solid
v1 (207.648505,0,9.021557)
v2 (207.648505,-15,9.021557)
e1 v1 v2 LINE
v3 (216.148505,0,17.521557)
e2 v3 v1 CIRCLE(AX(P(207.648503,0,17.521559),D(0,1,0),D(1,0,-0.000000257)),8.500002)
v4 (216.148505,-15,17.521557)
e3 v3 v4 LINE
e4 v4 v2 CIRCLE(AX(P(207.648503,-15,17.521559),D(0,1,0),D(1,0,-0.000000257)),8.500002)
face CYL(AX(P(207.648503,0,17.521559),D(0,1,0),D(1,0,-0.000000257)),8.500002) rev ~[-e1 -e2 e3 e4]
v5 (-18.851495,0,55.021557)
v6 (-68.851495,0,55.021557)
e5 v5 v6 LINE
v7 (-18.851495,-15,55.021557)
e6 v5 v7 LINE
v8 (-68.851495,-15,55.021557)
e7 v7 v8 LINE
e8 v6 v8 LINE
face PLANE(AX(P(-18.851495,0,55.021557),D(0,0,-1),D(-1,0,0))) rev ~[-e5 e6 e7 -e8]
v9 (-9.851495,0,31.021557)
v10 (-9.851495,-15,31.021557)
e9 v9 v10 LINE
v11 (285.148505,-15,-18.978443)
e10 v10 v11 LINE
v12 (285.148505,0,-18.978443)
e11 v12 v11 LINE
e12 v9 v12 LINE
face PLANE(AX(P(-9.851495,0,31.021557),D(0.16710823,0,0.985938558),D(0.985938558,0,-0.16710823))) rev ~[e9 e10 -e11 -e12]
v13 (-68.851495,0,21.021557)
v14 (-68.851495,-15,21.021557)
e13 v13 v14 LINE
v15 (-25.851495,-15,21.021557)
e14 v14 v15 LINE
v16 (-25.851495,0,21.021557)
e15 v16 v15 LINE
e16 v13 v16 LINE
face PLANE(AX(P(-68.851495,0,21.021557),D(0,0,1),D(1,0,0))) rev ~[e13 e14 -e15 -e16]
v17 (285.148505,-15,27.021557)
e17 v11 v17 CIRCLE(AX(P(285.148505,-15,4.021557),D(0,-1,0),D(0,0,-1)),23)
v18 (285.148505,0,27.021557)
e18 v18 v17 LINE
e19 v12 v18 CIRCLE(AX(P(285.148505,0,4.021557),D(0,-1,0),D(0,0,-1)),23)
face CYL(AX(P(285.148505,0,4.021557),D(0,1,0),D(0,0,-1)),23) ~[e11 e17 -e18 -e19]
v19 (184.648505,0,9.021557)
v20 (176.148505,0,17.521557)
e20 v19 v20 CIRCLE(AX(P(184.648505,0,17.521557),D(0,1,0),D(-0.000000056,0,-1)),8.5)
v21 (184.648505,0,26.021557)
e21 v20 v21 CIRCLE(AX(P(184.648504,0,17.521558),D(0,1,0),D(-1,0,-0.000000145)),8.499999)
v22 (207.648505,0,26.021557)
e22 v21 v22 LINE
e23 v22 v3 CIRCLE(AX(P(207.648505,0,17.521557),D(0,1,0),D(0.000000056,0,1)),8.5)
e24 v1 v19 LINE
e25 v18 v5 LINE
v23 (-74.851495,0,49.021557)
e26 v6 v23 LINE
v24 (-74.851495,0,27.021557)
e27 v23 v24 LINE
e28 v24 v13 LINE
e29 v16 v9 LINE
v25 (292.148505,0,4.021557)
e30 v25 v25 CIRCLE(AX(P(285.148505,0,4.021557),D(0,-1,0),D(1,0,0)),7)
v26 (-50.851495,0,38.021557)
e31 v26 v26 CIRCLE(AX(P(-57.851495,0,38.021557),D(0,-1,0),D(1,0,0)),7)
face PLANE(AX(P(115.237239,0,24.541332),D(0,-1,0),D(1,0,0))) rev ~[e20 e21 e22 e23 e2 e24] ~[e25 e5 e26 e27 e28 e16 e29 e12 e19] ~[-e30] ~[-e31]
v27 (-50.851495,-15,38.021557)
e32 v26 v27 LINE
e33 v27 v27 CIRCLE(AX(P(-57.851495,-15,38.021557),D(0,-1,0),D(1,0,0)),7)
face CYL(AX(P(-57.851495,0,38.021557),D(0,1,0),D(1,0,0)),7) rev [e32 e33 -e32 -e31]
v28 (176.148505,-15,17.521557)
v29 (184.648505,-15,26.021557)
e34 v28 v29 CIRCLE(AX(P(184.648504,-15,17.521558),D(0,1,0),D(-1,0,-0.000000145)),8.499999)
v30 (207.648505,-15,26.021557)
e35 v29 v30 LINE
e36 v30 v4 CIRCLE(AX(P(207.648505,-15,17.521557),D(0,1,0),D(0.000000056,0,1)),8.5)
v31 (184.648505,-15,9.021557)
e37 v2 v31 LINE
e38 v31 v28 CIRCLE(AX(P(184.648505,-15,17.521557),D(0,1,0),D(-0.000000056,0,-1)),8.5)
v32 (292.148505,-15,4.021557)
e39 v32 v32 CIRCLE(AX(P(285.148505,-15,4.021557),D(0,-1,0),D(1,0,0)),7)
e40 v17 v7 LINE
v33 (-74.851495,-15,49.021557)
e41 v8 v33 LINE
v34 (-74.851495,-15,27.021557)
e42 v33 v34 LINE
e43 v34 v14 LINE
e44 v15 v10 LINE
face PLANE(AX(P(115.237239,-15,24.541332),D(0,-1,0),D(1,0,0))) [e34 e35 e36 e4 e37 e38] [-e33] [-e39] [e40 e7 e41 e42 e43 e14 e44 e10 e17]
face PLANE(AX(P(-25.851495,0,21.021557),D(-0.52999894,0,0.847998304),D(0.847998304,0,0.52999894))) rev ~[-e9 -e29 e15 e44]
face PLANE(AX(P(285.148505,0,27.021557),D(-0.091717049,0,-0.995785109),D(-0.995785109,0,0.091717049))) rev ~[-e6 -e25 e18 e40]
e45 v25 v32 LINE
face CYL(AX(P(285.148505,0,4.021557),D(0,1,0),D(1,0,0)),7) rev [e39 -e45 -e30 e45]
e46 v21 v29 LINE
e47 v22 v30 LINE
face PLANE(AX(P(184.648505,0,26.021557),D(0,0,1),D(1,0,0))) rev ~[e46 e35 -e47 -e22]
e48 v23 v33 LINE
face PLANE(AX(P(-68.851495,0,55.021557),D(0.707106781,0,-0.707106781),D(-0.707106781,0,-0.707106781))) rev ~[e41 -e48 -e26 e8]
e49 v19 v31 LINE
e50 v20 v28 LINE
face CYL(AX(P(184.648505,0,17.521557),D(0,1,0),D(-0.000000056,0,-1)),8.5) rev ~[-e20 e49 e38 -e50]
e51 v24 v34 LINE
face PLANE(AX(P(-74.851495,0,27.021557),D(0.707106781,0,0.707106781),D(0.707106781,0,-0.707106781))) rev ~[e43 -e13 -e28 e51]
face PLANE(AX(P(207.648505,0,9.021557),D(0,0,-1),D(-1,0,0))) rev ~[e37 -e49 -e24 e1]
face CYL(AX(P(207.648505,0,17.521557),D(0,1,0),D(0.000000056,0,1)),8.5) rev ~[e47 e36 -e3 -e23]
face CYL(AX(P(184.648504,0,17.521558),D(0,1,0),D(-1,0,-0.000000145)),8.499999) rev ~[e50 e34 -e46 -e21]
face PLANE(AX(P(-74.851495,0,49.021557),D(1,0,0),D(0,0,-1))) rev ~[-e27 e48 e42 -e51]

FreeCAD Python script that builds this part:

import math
import FreeCAD as App
import Part
import Sketcher
from FreeCAD import Vector
Q = App.Units.Quantity

doc = App.newDocument("Part")
params = doc.addObject("Spreadsheet::Sheet", "Params")
for row, (alias, value) in enumerate([
    ("sketch1_diameter", "14 mm"),
    ("sketch1_radius", "23 mm"),
    ("sketch1_radius2", "8.5 mm"),
    ("sketch1_width", "50 mm"),
    ("sketch1_width2", "43 mm"),
    ("pad1_length", "15 mm"),
], start=1):
    params.set(f"A{row}", alias)
    params.set(f"B{row}", "=" + value)
    params.setAlias(f"B{row}", alias)

body = doc.addObject("PartDesign::Body", "Body")

sketch1 = body.newObject("Sketcher::SketchObject", "Sketch")
sketch1.AttachmentSupport = (doc.getObject("XZ_Plane"), [""])
sketch1.MapMode = "FlatFace"
sketch1.addGeometry(Part.LineSegment(Vector(285, 27, 0), Vector(-19, 55, 0)), False)
sketch1.addGeometry(Part.LineSegment(Vector(-19, 55, 0), Vector(-69, 55, 0)), False)
sketch1.addGeometry(Part.LineSegment(Vector(-69, 55, 0), Vector(-75, 49, 0)), False)
sketch1.addGeometry(Part.LineSegment(Vector(-75, 49, 0), Vector(-75, 27, 0)), False)
sketch1.addGeometry(Part.LineSegment(Vector(-75, 27, 0), Vector(-69, 21, 0)), False)
sketch1.addGeometry(Part.LineSegment(Vector(-69, 21, 0), Vector(-26, 21, 0)), False)
sketch1.addGeometry(Part.LineSegment(Vector(-26, 21, 0), Vector(-10, 31, 0)), False)
sketch1.addGeometry(Part.LineSegment(Vector(-10, 31, 0), Vector(285, -19, 0)), False)
sketch1.addGeometry(Part.ArcOfCircle(Part.Circle(Vector(285, 4, 0), Vector(0, 0, 1), 23), math.radians(-90), math.radians(90)), False)
sketch1.addGeometry(Part.Circle(Vector(285, 4, 0), Vector(0, 0, 1), 7), False)
sketch1.addGeometry(Part.ArcOfCircle(Part.Circle(Vector(185, 18, 0), Vector(0, 0, 1), 9), math.radians(-180), math.radians(-90)), False)
sketch1.addGeometry(Part.ArcOfCircle(Part.Circle(Vector(185, 18, 0), Vector(0, 0, 1), 8), math.radians(90), math.radians(180)), False)
sketch1.addGeometry(Part.LineSegment(Vector(185, 26, 0), Vector(208, 26, 0)), False)
sketch1.addGeometry(Part.ArcOfCircle(Part.Circle(Vector(208, 18, 0), Vector(0, 0, 1), 9), math.radians(0), math.radians(90)), False)
sketch1.addGeometry(Part.ArcOfCircle(Part.Circle(Vector(208, 18, 0), Vector(0, 0, 1), 9), math.radians(-90), math.radians(0)), False)
sketch1.addGeometry(Part.LineSegment(Vector(208, 9, 0), Vector(185, 9, 0)), False)
sketch1.addGeometry(Part.Circle(Vector(-58, 38, 0), Vector(0, 0, 1), 7), False)
sketch1.addConstraint(Sketcher.Constraint("Coincident", 0, 2, 1, 1))
sketch1.addConstraint(Sketcher.Constraint("Coincident", 1, 2, 2, 1))
sketch1.addConstraint(Sketcher.Constraint("Coincident", 2, 2, 3, 1))
sketch1.addConstraint(Sketcher.Constraint("Coincident", 3, 2, 4, 1))
sketch1.addConstraint(Sketcher.Constraint("Coincident", 4, 2, 5, 1))
sketch1.addConstraint(Sketcher.Constraint("Coincident", 5, 2, 6, 1))
sketch1.addConstraint(Sketcher.Constraint("Coincident", 6, 2, 7, 1))
sketch1.addConstraint(Sketcher.Constraint("Coincident", 7, 2, 8, 1))
sketch1.addConstraint(Sketcher.Constraint("Coincident", 8, 2, 0, 1))
sketch1.addConstraint(Sketcher.Constraint("Tangent", 10, 1, 11, 2))
sketch1.addConstraint(Sketcher.Constraint("Tangent", 11, 1, 12, 1))
sketch1.addConstraint(Sketcher.Constraint("Tangent", 12, 2, 13, 2))
sketch1.addConstraint(Sketcher.Constraint("Tangent", 13, 1, 14, 2))
sketch1.addConstraint(Sketcher.Constraint("Tangent", 14, 1, 15, 1))
sketch1.addConstraint(Sketcher.Constraint("Tangent", 15, 2, 10, 2))
sketch1.addConstraint(Sketcher.Constraint("Horizontal", 1))
sketch1.addConstraint(Sketcher.Constraint("Vertical", 3))
sketch1.addConstraint(Sketcher.Constraint("Horizontal", 5))
sketch1.addConstraint(Sketcher.Constraint("Horizontal", 12))
sketch1.addConstraint(Sketcher.Constraint("Horizontal", 15))
sketch1.addConstraint(Sketcher.Constraint("Coincident", 9, 3, 8, 3))
sketch1.addConstraint(Sketcher.Constraint("Equal", 10, 11))
sketch1.addConstraint(Sketcher.Constraint("Equal", 11, 13))
sketch1.addConstraint(Sketcher.Constraint("Equal", 9, 16))
sketch1.addConstraint(Sketcher.Constraint("Perpendicular", 2, 4))
sketch1.addConstraint(Sketcher.Constraint("Horizontal", 3, 2, 8, 2))
sketch1.addConstraint(Sketcher.Constraint("Horizontal", 13, 3, 10, 1))
sketch1.addConstraint(Sketcher.Constraint("Horizontal", 10, 1, 13, 1))
sketch1.addConstraint(Sketcher.Constraint("Vertical", 1, 2, 4, 2))
sketch1.addConstraint(Sketcher.Constraint("Vertical", 9, 3, 7, 2))
sketch1.addConstraint(Sketcher.Constraint("Vertical", 7, 2, 8, 2))
sketch1.addConstraint(Sketcher.Constraint("Equal", 2, 4))
sketch1.addConstraint(Sketcher.Constraint("Diameter", 9, Q("14 mm")))
sketch1.addConstraint(Sketcher.Constraint("Radius", 8, Q("23 mm")))
sketch1.addConstraint(Sketcher.Constraint("Radius", 10, Q("8.5 mm")))
sketch1.addConstraint(Sketcher.Constraint("DistanceX", 1, 2, 1, 1, Q("50 mm")))
sketch1.addConstraint(Sketcher.Constraint("DistanceX", 5, 1, 5, 2, Q("43 mm")))
sketch1.addConstraint(Sketcher.Constraint("DistanceX", 12, 1, 12, 2, Q("23 mm")))
sketch1.addConstraint(Sketcher.Constraint("DistanceY", 3, 2, 3, 1, Q("22 mm")))
sketch1.addConstraint(Sketcher.Constraint("DistanceX", 16, 3, 8, 3, Q("343 mm")))
sketch1.addConstraint(Sketcher.Constraint("DistanceY", 8, 3, 16, 3, Q("34 mm")))
sketch1.addConstraint(Sketcher.Constraint("DistanceX", 16, 3, 0, 2, Q("39 mm")))
sketch1.addConstraint(Sketcher.Constraint("DistanceY", 16, 3, 0, 2, Q("17 mm")))
sketch1.addConstraint(Sketcher.Constraint("DistanceX", 5, 2, 6, 2, Q("16 mm")))
sketch1.addConstraint(Sketcher.Constraint("DistanceY", 5, 2, 6, 2, Q("10 mm")))
sketch1.addConstraint(Sketcher.Constraint("DistanceX", 10, 1, 8, 2, Q("109 mm")))
sketch1.addConstraint(Sketcher.Constraint("DistanceY", 8, 3, 10, 3, Q("13.5 mm")))
sketch1.addConstraint(Sketcher.Constraint("DistanceY", -1, 1, 11, 3, Q("17.521558 mm")))
sketch1.addConstraint(Sketcher.Constraint("DistanceX", -1, 1, 8, 3, Q("285.148505 mm")))
sketch1.setExpression("Constraints[32]", "Params.sketch1_diameter")
sketch1.setExpression("Constraints[33]", "Params.sketch1_radius")
sketch1.setExpression("Constraints[34]", "Params.sketch1_radius2")
sketch1.setExpression("Constraints[35]", "Params.sketch1_width")
sketch1.setExpression("Constraints[36]", "Params.sketch1_width2")
pad1 = body.newObject("PartDesign::Pad", "Pad")
pad1.Profile = sketch1
pad1.setExpression("Length", "Params.pad1_length")

doc.recompute()
